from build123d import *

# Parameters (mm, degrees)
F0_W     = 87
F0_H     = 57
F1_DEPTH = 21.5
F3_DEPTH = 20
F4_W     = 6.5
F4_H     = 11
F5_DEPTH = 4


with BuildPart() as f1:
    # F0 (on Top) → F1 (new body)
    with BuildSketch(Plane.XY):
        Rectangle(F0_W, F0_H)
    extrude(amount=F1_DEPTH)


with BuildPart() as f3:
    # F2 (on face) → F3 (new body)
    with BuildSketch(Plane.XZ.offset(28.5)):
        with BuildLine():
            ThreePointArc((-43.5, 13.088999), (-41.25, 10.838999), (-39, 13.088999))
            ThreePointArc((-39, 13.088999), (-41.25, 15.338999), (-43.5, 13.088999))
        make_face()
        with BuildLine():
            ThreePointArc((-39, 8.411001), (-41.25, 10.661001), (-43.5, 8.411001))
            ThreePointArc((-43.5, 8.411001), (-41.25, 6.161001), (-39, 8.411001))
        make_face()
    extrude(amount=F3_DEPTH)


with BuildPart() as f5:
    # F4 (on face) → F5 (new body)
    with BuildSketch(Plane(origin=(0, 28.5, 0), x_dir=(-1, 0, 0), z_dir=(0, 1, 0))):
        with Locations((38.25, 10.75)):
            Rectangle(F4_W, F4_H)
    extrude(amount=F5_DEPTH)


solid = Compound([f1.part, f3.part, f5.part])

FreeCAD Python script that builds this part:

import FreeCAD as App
import Part
import Sketcher

doc = App.newDocument("Part")
body = doc.addObject("PartDesign::Body", "Body")

# Sketch on XY plane
sketch1 = body.newObject("Sketcher::SketchObject", "Sketch")
sketch1.AttachmentSupport = (doc.getObject("XY_Plane"), [""])
sketch1.MapMode = "FlatFace"
sketch1.addGeometry(Part.LineSegment(App.Vector(-44, 28, 0), App.Vector(-44, -28, 0)), False)
sketch1.addGeometry(Part.LineSegment(App.Vector(-44, -28, 0), App.Vector(44, -28, 0)), False)
sketch1.addGeometry(Part.LineSegment(App.Vector(44, -28, 0), App.Vector(44, 28, 0)), False)
sketch1.addGeometry(Part.LineSegment(App.Vector(44, 28, 0), App.Vector(-44, 28, 0)), False)
sketch1.addConstraint(Sketcher.Constraint("Coincident", 0, 2, 1, 1))
sketch1.addConstraint(Sketcher.Constraint("Coincident", 1, 2, 2, 1))
sketch1.addConstraint(Sketcher.Constraint("Coincident", 2, 2, 3, 1))
sketch1.addConstraint(Sketcher.Constraint("Coincident", 3, 2, 0, 1))
sketch1.addConstraint(Sketcher.Constraint("Vertical", 0))
sketch1.addConstraint(Sketcher.Constraint("Horizontal", 1))
sketch1.addConstraint(Sketcher.Constraint("Vertical", 2))
sketch1.addConstraint(Sketcher.Constraint("Horizontal", 3))
sketch1.addConstraint(Sketcher.Constraint("Symmetric", 0, 2, 2, 2, -1, 1))
sketch1.addConstraint(Sketcher.Constraint("DistanceX", 1, 1, 1, 2, 87.0))
sketch1.addConstraint(Sketcher.Constraint("DistanceY", 0, 2, 0, 1, 57.0))
pad1 = body.newObject("PartDesign::Pad", "Pad")
pad1.Profile = sketch1
pad1.Length = 21.5
body2 = doc.addObject("PartDesign::Body", "Body001")
body2.AllowCompound = True

# Sketch on XZ plane
sketch2 = body2.newObject("Sketcher::SketchObject", "Sketch001")
sketch2.AttachmentSupport = (doc.getObject("XZ_Plane001"), [""])
sketch2.MapMode = "FlatFace"
sketch2.AttachmentOffset = App.Placement(App.Vector(0, 0, 28.5), App.Rotation())
sketch2.addGeometry(Part.Circle(App.Vector(-41.2, 13.1, 0), App.Vector(0, 0, 1), 2.2), False)
sketch2.addGeometry(Part.Circle(App.Vector(-41.2, 8.4, 0), App.Vector(0, 0, 1), 2.2), False)
sketch2.addConstraint(Sketcher.Constraint("Equal", 0, 1))
sketch2.addConstraint(Sketcher.Constraint("Vertical", 0, 3, 1, 3))
sketch2.addConstraint(Sketcher.Constraint("Diameter", 0, 4.5))
sketch2.addConstraint(Sketcher.Constraint("DistanceX", 0, 3, -1, 1, 41.25))
sketch2.addConstraint(Sketcher.Constraint("DistanceY", -1, 1, 0, 3, 13.088999))
sketch2.addConstraint(Sketcher.Constraint("DistanceY", -1, 1, 1, 3, 8.411001))
pad2 = body2.newObject("PartDesign::Pad", "Pad001")
pad2.Profile = sketch2
pad2.Length = 20
body3 = doc.addObject("PartDesign::Body", "Body002")

# Sketch on XZ plane
sketch3 = body3.newObject("Sketcher::SketchObject", "Sketch002")
sketch3.AttachmentSupport = (doc.getObject("XZ_Plane002"), [""])
sketch3.MapMode = "FlatFace"
sketch3.AttachmentOffset = App.Placement(App.Vector(0, 0, -28.5), App.Rotation())
sketch3.addGeometry(Part.LineSegment(App.Vector(-35, 16, 0), App.Vector(-35, 5, 0)), False)
sketch3.addGeometry(Part.LineSegment(App.Vector(-35, 5, 0), App.Vector(-42, 5, 0)), False)
sketch3.addGeometry(Part.LineSegment(App.Vector(-42, 5, 0), App.Vector(-42, 16, 0)), False)
sketch3.addGeometry(Part.LineSegment(App.Vector(-42, 16, 0), App.Vector(-35, 16, 0)), False)
sketch3.addConstraint(Sketcher.Constraint("Coincident", 0, 2, 1, 1))
sketch3.addConstraint(Sketcher.Constraint("Coincident", 1, 2, 2, 1))
sketch3.addConstraint(Sketcher.Constraint("Coincident", 2, 2, 3, 1))
sketch3.addConstraint(Sketcher.Constraint("Coincident", 3, 2, 0, 1))
sketch3.addConstraint(Sketcher.Constraint("Vertical", 0))
sketch3.addConstraint(Sketcher.Constraint("Horizontal", 1))
sketch3.addConstraint(Sketcher.Constraint("Vertical", 2))
sketch3.addConstraint(Sketcher.Constraint("Horizontal", 3))
sketch3.addConstraint(Sketcher.Constraint("DistanceY", 0, 2, 0, 1, 11.0))
sketch3.addConstraint(Sketcher.Constraint("DistanceX", 1, 2, 1, 1, 6.5))
sketch3.addConstraint(Sketcher.Constraint("DistanceX", 0, 2, -1, 1, 35.0))
sketch3.addConstraint(Sketcher.Constraint("DistanceY", -1, 1, 0, 2, 5.25))
pad3 = body3.newObject("PartDesign::Pad", "Pad002")
pad3.Profile = sketch3
pad3.Length = 4
pad3.Reversed = True

doc.recompute()
